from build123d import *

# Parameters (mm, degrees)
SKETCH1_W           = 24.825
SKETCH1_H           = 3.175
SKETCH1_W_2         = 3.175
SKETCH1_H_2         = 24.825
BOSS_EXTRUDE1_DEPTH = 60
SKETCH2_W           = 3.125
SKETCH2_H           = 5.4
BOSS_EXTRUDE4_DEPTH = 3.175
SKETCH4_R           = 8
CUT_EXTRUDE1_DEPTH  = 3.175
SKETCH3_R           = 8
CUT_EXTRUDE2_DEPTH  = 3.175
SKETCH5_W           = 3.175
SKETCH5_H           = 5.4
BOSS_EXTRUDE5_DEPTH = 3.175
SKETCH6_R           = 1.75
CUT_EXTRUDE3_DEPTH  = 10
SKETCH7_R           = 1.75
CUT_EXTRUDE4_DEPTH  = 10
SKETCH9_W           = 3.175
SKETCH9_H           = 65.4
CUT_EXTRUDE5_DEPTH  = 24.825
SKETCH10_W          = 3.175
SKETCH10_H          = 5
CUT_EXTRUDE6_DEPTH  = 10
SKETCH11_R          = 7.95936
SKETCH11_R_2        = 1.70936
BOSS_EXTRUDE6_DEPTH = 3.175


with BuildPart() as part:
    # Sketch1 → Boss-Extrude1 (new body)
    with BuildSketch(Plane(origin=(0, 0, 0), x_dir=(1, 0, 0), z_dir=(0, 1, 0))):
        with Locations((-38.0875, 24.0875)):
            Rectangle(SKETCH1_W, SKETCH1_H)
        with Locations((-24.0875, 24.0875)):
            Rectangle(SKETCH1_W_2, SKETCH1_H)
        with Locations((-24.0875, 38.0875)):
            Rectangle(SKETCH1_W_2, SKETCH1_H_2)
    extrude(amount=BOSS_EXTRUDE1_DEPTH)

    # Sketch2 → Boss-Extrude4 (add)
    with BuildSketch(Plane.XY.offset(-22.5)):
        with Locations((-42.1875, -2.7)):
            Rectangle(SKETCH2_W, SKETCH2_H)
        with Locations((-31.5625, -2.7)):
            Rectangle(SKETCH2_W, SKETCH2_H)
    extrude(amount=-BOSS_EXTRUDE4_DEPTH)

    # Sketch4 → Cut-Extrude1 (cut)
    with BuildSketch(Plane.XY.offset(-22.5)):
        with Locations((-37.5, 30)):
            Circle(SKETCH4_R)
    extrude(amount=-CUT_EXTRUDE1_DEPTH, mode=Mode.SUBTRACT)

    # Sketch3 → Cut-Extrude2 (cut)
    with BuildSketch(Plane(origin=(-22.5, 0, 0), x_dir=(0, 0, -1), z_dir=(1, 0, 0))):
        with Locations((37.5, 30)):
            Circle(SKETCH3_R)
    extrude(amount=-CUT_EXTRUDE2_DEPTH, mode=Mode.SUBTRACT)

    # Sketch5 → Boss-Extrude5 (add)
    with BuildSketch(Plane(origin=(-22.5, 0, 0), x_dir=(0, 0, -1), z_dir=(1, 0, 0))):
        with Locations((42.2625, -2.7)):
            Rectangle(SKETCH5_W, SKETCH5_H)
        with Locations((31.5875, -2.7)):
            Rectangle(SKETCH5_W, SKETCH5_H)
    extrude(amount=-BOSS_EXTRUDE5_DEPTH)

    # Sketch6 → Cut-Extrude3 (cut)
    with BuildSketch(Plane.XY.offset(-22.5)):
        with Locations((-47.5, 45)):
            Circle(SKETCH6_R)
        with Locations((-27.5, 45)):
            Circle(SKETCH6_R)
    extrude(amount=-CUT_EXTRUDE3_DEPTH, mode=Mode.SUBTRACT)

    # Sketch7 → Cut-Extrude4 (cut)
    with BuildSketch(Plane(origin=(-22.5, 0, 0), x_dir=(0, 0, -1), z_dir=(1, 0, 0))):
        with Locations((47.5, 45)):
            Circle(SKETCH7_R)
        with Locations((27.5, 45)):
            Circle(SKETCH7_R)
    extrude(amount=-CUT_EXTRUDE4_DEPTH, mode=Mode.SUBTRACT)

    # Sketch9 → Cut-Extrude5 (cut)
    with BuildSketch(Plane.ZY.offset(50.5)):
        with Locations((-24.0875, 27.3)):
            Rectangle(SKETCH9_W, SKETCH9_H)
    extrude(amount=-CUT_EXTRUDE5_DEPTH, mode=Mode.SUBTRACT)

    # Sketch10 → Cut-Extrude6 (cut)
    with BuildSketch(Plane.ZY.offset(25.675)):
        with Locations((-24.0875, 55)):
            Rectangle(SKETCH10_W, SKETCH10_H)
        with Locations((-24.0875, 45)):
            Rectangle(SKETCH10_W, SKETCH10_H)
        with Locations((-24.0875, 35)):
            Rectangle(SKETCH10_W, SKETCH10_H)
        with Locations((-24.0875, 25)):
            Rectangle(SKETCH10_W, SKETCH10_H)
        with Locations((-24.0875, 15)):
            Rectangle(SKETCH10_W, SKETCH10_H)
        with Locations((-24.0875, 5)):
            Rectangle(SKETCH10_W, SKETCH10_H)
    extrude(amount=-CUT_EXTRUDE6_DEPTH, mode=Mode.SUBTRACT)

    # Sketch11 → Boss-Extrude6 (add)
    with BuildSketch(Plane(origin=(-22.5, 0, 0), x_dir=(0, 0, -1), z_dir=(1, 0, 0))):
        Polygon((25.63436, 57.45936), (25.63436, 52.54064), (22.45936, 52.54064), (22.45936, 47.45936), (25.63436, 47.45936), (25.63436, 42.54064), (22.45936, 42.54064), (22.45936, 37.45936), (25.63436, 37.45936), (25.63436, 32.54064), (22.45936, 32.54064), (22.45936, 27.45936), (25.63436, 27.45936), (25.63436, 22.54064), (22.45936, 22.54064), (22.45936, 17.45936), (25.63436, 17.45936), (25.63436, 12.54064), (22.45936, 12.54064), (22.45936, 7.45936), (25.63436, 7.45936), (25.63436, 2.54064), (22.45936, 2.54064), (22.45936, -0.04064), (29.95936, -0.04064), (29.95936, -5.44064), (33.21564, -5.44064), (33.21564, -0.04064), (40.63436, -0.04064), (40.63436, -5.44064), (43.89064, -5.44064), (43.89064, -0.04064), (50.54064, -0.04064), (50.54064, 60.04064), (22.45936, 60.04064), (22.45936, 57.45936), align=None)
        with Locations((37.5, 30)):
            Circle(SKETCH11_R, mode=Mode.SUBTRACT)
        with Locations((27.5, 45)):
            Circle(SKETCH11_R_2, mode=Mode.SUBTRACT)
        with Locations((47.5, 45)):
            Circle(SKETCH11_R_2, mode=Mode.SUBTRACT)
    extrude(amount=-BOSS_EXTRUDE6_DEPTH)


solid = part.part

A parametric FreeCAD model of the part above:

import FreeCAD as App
import Part
import Sketcher
from FreeCAD import Vector

doc = App.newDocument("Part")
body = doc.addObject("PartDesign::Body", "Body")

# Sketch on XZ plane
sketch1 = body.newObject("Sketcher::SketchObject", "Sketch")
sketch1.AttachmentSupport = (doc.getObject("XZ_Plane"), [""])
sketch1.MapMode = "FlatFace"
sketch1.addGeometry(Part.LineSegment(Vector(-50.5, -25.7, 0), Vector(-50.5, -22.5, 0)), False)
sketch1.addGeometry(Part.LineSegment(Vector(-50.5, -22.5, 0), Vector(-22.5, -22.5, 0)), False)
sketch1.addGeometry(Part.LineSegment(Vector(-22.5, -22.5, 0), Vector(-22.5, -50.5, 0)), False)
sketch1.addGeometry(Part.LineSegment(Vector(-22.5, -50.5, 0), Vector(-25.7, -50.5, 0)), False)
sketch1.addGeometry(Part.LineSegment(Vector(-25.7, -50.5, 0), Vector(-25.7, -25.7, 0)), False)
sketch1.addGeometry(Part.LineSegment(Vector(-25.7, -25.7, 0), Vector(-50.5, -25.7, 0)), False)
sketch1.addConstraint(Sketcher.Constraint("Coincident", 0, 2, 1, 1))
sketch1.addConstraint(Sketcher.Constraint("Coincident", 1, 2, 2, 1))
sketch1.addConstraint(Sketcher.Constraint("Coincident", 2, 2, 3, 1))
sketch1.addConstraint(Sketcher.Constraint("Coincident", 3, 2, 4, 1))
sketch1.addConstraint(Sketcher.Constraint("Coincident", 4, 2, 5, 1))
sketch1.addConstraint(Sketcher.Constraint("Coincident", 5, 2, 0, 1))
sketch1.addConstraint(Sketcher.Constraint("Vertical", 0))
sketch1.addConstraint(Sketcher.Constraint("Horizontal", 1))
sketch1.addConstraint(Sketcher.Constraint("Vertical", 2))
sketch1.addConstraint(Sketcher.Constraint("Horizontal", 3))
sketch1.addConstraint(Sketcher.Constraint("Vertical", 4))
sketch1.addConstraint(Sketcher.Constraint("Horizontal", 5))
sketch1.addConstraint(Sketcher.Constraint("Equal", 3, 0))
sketch1.addConstraint(Sketcher.Constraint("Equal", 1, 2))
sketch1.addConstraint(Sketcher.Constraint("DistanceX", 1, 1, 1, 2, 28.0))
sketch1.addConstraint(Sketcher.Constraint("DistanceX", 0, 2, -1, 1, 50.5))
sketch1.addConstraint(Sketcher.Constraint("DistanceY", 0, 2, -1, 1, 22.5))
sketch1.addConstraint(Sketcher.Constraint("DistanceX", 3, 2, 3, 1, 3.175))
pad1 = body.newObject("PartDesign::Pad", "Pad")
pad1.Profile = sketch1
pad1.Length = 60
pad1.Reversed = True

# Sketch on XY plane
sketch2 = body.newObject("Sketcher::SketchObject", "Sketch001")
sketch2.AttachmentSupport = (doc.getObject("XY_Plane"), [""])
sketch2.MapMode = "FlatFace"
sketch2.AttachmentOffset = App.Placement(Vector(0, 0, -22.5), App.Rotation())
sketch2.addGeometry(Part.LineSegment(Vector(-43.8, 0, 0), Vector(-43.8, -5.4, 0)), False)
sketch2.addGeometry(Part.LineSegment(Vector(-43.8, -5.4, 0), Vector(-40.6, -5.4, 0)), False)
sketch2.addGeometry(Part.LineSegment(Vector(-40.6, -5.4, 0), Vector(-40.6, 0, 0)), False)
sketch2.addGeometry(Part.LineSegment(Vector(-40.6, 0, 0), Vector(-43.8, 0, 0)), False)
sketch2.addGeometry(Part.LineSegment(Vector(-33.1, 0, 0), Vector(-33.1, -5.4, 0)), False)
sketch2.addGeometry(Part.LineSegment(Vector(-33.1, -5.4, 0), Vector(-30, -5.4, 0)), False)
sketch2.addGeometry(Part.LineSegment(Vector(-30, -5.4, 0), Vector(-30, 0, 0)), False)
sketch2.addGeometry(Part.LineSegment(Vector(-30, 0, 0), Vector(-33.1, 0, 0)), False)
sketch2.addConstraint(Sketcher.Constraint("Coincident", 0, 2, 1, 1))
sketch2.addConstraint(Sketcher.Constraint("Coincident", 1, 2, 2, 1))
sketch2.addConstraint(Sketcher.Constraint("Coincident", 2, 2, 3, 1))
sketch2.addConstraint(Sketcher.Constraint("Coincident", 3, 2, 0, 1))
sketch2.addConstraint(Sketcher.Constraint("Coincident", 4, 2, 5, 1))
sketch2.addConstraint(Sketcher.Constraint("Coincident", 5, 2, 6, 1))
sketch2.addConstraint(Sketcher.Constraint("Coincident", 6, 2, 7, 1))
sketch2.addConstraint(Sketcher.Constraint("Coincident", 7, 2, 4, 1))
sketch2.addConstraint(Sketcher.Constraint("Vertical", 0))
sketch2.addConstraint(Sketcher.Constraint("Horizontal", 1))
sketch2.addConstraint(Sketcher.Constraint("Vertical", 2))
sketch2.addConstraint(Sketcher.Constraint("Horizontal", 3))
sketch2.addConstraint(Sketcher.Constraint("Vertical", 4))
sketch2.addConstraint(Sketcher.Constraint("Horizontal", 5))
sketch2.addConstraint(Sketcher.Constraint("Vertical", 6))
sketch2.addConstraint(Sketcher.Constraint("Horizontal", 7))
sketch2.addConstraint(Sketcher.Constraint("PointOnObject", 2, 2, -1))
sketch2.addConstraint(Sketcher.Constraint("PointOnObject", 6, 2, -1))
sketch2.addConstraint(Sketcher.Constraint("Horizontal", 1, 2, 4, 2))
sketch2.addConstraint(Sketcher.Constraint("Equal", 3, 5))
sketch2.addConstraint(Sketcher.Constraint("DistanceY", 0, 2, 0, 1, 5.4))
sketch2.addConstraint(Sketcher.Constraint("DistanceX", 5, 2, -1, 1, 30.0))
sketch2.addConstraint(Sketcher.Constraint("DistanceX", 1, 2, 4, 2, 7.5))
sketch2.addConstraint(Sketcher.Constraint("DistanceX", 1, 1, 1, 2, 3.125))
pad2 = body.newObject("PartDesign::Pad", "Pad001")
pad2.Profile = sketch2
pad2.Length = 3.175
pad2.Reversed = True

# Sketch on XY plane
sketch3 = body.newObject("Sketcher::SketchObject", "Sketch002")
sketch3.AttachmentSupport = (doc.getObject("XY_Plane"), [""])
sketch3.MapMode = "FlatFace"
sketch3.AttachmentOffset = App.Placement(Vector(0, 0, -22.5), App.Rotation())
sketch3.addGeometry(Part.Circle(Vector(-38, 30, 0), Vector(0, 0, 1), 8), False)
sketch3.addConstraint(Sketcher.Constraint("Diameter", 0, 16.0))
sketch3.addConstraint(Sketcher.Constraint("DistanceY", -1, 1, 0, 3, 30.0))
sketch3.addConstraint(Sketcher.Constraint("DistanceX", 0, 3, -1, 1, 37.5))
pocket1 = body.newObject("PartDesign::Pocket", "Pocket")
pocket1.Profile = sketch3
pocket1.Length = 3.175

# Sketch on YZ plane
sketch4 = body.newObject("Sketcher::SketchObject", "Sketch003")
sketch4.AttachmentSupport = (doc.getObject("YZ_Plane"), [""])
sketch4.MapMode = "FlatFace"
sketch4.AttachmentOffset = App.Placement(Vector(0, 0, -22.5), App.Rotation())
sketch4.addGeometry(Part.Circle(Vector(30, -38, 0), Vector(0, 0, 1), 8), False)
sketch4.addConstraint(Sketcher.Constraint("Diameter", 0, 16.0))
sketch4.addConstraint(Sketcher.Constraint("DistanceX", -1, 1, 0, 3, 30.0))
sketch4.addConstraint(Sketcher.Constraint("DistanceY", 0, 3, -1, 1, 37.5))
pocket2 = body.newObject("PartDesign::Pocket", "Pocket001")
pocket2.Profile = sketch4
pocket2.Length = 3.175

# Sketch on YZ plane
sketch5 = body.newObject("Sketcher::SketchObject", "Sketch004")
sketch5.AttachmentSupport = (doc.getObject("YZ_Plane"), [""])
sketch5.MapMode = "FlatFace"
sketch5.AttachmentOffset = App.Placement(Vector(0, 0, -22.5), App.Rotation())
sketch5.addGeometry(Part.LineSegment(Vector(0, -40.7, 0), Vector(-5.4, -40.7, 0)), False)
sketch5.addGeometry(Part.LineSegment(Vector(-5.4, -40.7, 0), Vector(-5.4, -43.9, 0)), False)
sketch5.addGeometry(Part.LineSegment(Vector(-5.4, -43.9, 0), Vector(0, -43.9, 0)), False)
sketch5.addGeometry(Part.LineSegment(Vector(0, -43.9, 0), Vector(0, -40.7, 0)), False)
sketch5.addGeometry(Part.LineSegment(Vector(0, -30, 0), Vector(-5.4, -30, 0)), False)
sketch5.addGeometry(Part.LineSegment(Vector(-5.4, -30, 0), Vector(-5.4, -33.2, 0)), False)
sketch5.addGeometry(Part.LineSegment(Vector(-5.4, -33.2, 0), Vector(0, -33.2, 0)), False)
sketch5.addGeometry(Part.LineSegment(Vector(0, -33.2, 0), Vector(0, -30, 0)), False)
sketch5.addConstraint(Sketcher.Constraint("Coincident", 0, 2, 1, 1))
sketch5.addConstraint(Sketcher.Constraint("Coincident", 1, 2, 2, 1))
sketch5.addConstraint(Sketcher.Constraint("Coincident", 2, 2, 3, 1))
sketch5.addConstraint(Sketcher.Constraint("Coincident", 3, 2, 0, 1))
sketch5.addConstraint(Sketcher.Constraint("Coincident", 4, 2, 5, 1))
sketch5.addConstraint(Sketcher.Constraint("Coincident", 5, 2, 6, 1))
sketch5.addConstraint(Sketcher.Constraint("Coincident", 6, 2, 7, 1))
sketch5.addConstraint(Sketcher.Constraint("Coincident", 7, 2, 4, 1))
sketch5.addConstraint(Sketcher.Constraint("Horizontal", 0))
sketch5.addConstraint(Sketcher.Constraint("Vertical", 1))
sketch5.addConstraint(Sketcher.Constraint("Horizontal", 2))
sketch5.addConstraint(Sketcher.Constraint("Vertical", 3))
sketch5.addConstraint(Sketcher.Constraint("Horizontal", 4))
sketch5.addConstraint(Sketcher.Constraint("Vertical", 5))
sketch5.addConstraint(Sketcher.Constraint("Horizontal", 6))
sketch5.addConstraint(Sketcher.Constraint("Vertical", 7))
sketch5.addConstraint(Sketcher.Constraint("PointOnObject", 2, 2, -2))
sketch5.addConstraint(Sketcher.Constraint("PointOnObject", 6, 2, -2))
sketch5.addConstraint(Sketcher.Constraint("Vertical", 1, 2, 4, 2))
sketch5.addConstraint(Sketcher.Constraint("Equal", 3, 5))
sketch5.addConstraint(Sketcher.Constraint("DistanceX", 0, 2, 0, 1, 5.4))
sketch5.addConstraint(Sketcher.Constraint("DistanceY", 4, 2, -1, 1, 30.0))
sketch5.addConstraint(Sketcher.Constraint("DistanceY", 0, 2, 5, 2, 7.5))
sketch5.addConstraint(Sketcher.Constraint("DistanceY", 1, 2, 1, 1, 3.175))
pad3 = body.newObject("PartDesign::Pad", "Pad002")
pad3.Profile = sketch5
pad3.Length = 3.175
pad3.Reversed = True

# Sketch on XY plane
sketch6 = body.newObject("Sketcher::SketchObject", "Sketch005")
sketch6.AttachmentSupport = (doc.getObject("XY_Plane"), [""])
sketch6.MapMode = "FlatFace"
sketch6.AttachmentOffset = App.Placement(Vector(0, 0, -22.5), App.Rotation())
sketch6.addGeometry(Part.Circle(Vector(-47.5, 45, 0), Vector(0, 0, 1), 1.8), False)
sketch6.addGeometry(Part.Circle(Vector(-27.5, 45, 0), Vector(0, 0, 1), 1.8), False)
sketch6.addConstraint(Sketcher.Constraint("Equal", 0, 1))
sketch6.addConstraint(Sketcher.Constraint("Horizontal", 0, 3, 1, 3))
sketch6.addConstraint(Sketcher.Constraint("Diameter", 0, 3.5))
sketch6.addConstraint(Sketcher.Constraint("DistanceY", -1, 1, 0, 3, 45.0))
sketch6.addConstraint(Sketcher.Constraint("DistanceX", 0, 3, 1, 3, 20.0))
sketch6.addConstraint(Sketcher.Constraint("DistanceX", 0, 3, -1, 1, 47.5))
pocket3 = body.newObject("PartDesign::Pocket", "Pocket002")
pocket3.Profile = sketch6
pocket3.Length = 10

# Sketch on YZ plane
sketch7 = body.newObject("Sketcher::SketchObject", "Sketch006")
sketch7.AttachmentSupport = (doc.getObject("YZ_Plane"), [""])
sketch7.MapMode = "FlatFace"
sketch7.AttachmentOffset = App.Placement(Vector(0, 0, -22.5), App.Rotation())
sketch7.addGeometry(Part.Circle(Vector(45, -47.5, 0), Vector(0, 0, 1), 1.8), False)
sketch7.addGeometry(Part.Circle(Vector(45, -27.5, 0), Vector(0, 0, 1), 1.8), False)
sketch7.addConstraint(Sketcher.Constraint("Equal", 0, 1))
sketch7.addConstraint(Sketcher.Constraint("Vertical", 0, 3, 1, 3))
sketch7.addConstraint(Sketcher.Constraint("Diameter", 0, 3.5))
sketch7.addConstraint(Sketcher.Constraint("DistanceX", -1, 1, 0, 3, 45.0))
sketch7.addConstraint(Sketcher.Constraint("DistanceY", 0, 3, 1, 3, 20.0))
sketch7.addConstraint(Sketcher.Constraint("DistanceY", 0, 3, -1, 1, 47.5))
pocket4 = body.newObject("PartDesign::Pocket", "Pocket003")
pocket4.Profile = sketch7
pocket4.Length = 10

# Sketch on YZ plane
sketch8 = body.newObject("Sketcher::SketchObject", "Sketch007")
sketch8.AttachmentSupport = (doc.getObject("YZ_Plane"), [""])
sketch8.MapMode = "FlatFace"
sketch8.AttachmentOffset = App.Placement(Vector(0, 0, -50.5), App.Rotation())
sketch8.addGeometry(Part.LineSegment(Vector(60, -25.7, 0), Vector(-5.4, -25.7, 0)), False)
sketch8.addGeometry(Part.LineSegment(Vector(-5.4, -25.7, 0), Vector(-5.4, -22.5, 0)), False)
sketch8.addGeometry(Part.LineSegment(Vector(-5.4, -22.5, 0), Vector(60, -22.5, 0)), False)
sketch8.addGeometry(Part.LineSegment(Vector(60, -22.5, 0), Vector(60, -25.7, 0)), False)
sketch8.addConstraint(Sketcher.Constraint("Coincident", 0, 2, 1, 1))
sketch8.addConstraint(Sketcher.Constraint("Coincident", 1, 2, 2, 1))
sketch8.addConstraint(Sketcher.Constraint("Coincident", 2, 2, 3, 1))
sketch8.addConstraint(Sketcher.Constraint("Coincident", 3, 2, 0, 1))
sketch8.addConstraint(Sketcher.Constraint("Horizontal", 0))
sketch8.addConstraint(Sketcher.Constraint("Vertical", 1))
sketch8.addConstraint(Sketcher.Constraint("Horizontal", 2))
sketch8.addConstraint(Sketcher.Constraint("Vertical", 3))
sketch8.addConstraint(Sketcher.Constraint("DistanceX", 0, 2, 0, 1, 65.4))
sketch8.addConstraint(Sketcher.Constraint("DistanceX", -1, 1, 2, 2, 60.0))
sketch8.addConstraint(Sketcher.Constraint("DistanceY", 1, 2, -1, 1, 22.5))
sketch8.addConstraint(Sketcher.Constraint("DistanceY", 1, 1, 1, 2, 3.175))
pocket5 = body.newObject("PartDesign::Pocket", "Pocket004")
pocket5.Profile = sketch8
pocket5.Length = 24.825
pocket5.Reversed = True

# Sketch on YZ plane
sketch9 = body.newObject("Sketcher::SketchObject", "Sketch008")
sketch9.AttachmentSupport = (doc.getObject("YZ_Plane"), [""])
sketch9.MapMode = "FlatFace"
sketch9.AttachmentOffset = App.Placement(Vector(0, 0, -25.675), App.Rotation())
sketch9.addGeometry(Part.LineSegment(Vector(57.5, -25.7, 0), Vector(52.5, -25.7, 0)), False)
sketch9.addGeometry(Part.LineSegment(Vector(52.5, -25.7, 0), Vector(52.5, -22.5, 0)), False)
sketch9.addGeometry(Part.LineSegment(Vector(52.5, -22.5, 0), Vector(57.5, -22.5, 0)), False)
sketch9.addGeometry(Part.LineSegment(Vector(57.5, -22.5, 0), Vector(57.5, -25.7, 0)), False)
sketch9.addGeometry(Part.LineSegment(Vector(47.5, -25.7, 0), Vector(42.5, -25.7, 0)), False)
sketch9.addGeometry(Part.LineSegment(Vector(42.5, -25.7, 0), Vector(42.5, -22.5, 0)), False)
sketch9.addGeometry(Part.LineSegment(Vector(42.5, -22.5, 0), Vector(47.5, -22.5, 0)), False)
sketch9.addGeometry(Part.LineSegment(Vector(47.5, -22.5, 0), Vector(47.5, -25.7, 0)), False)
sketch9.addGeometry(Part.LineSegment(Vector(37.5, -25.7, 0), Vector(32.5, -25.7, 0)), False)
sketch9.addGeometry(Part.LineSegment(Vector(32.5, -25.7, 0), Vector(32.5, -22.5, 0)), False)
sketch9.addGeometry(Part.LineSegment(Vector(32.5, -22.5, 0), Vector(37.5, -22.5, 0)), False)
sketch9.addGeometry(Part.LineSegment(Vector(37.5, -22.5, 0), Vector(37.5, -25.7, 0)), False)
sketch9.addGeometry(Part.LineSegment(Vector(27.5, -25.7, 0), Vector(22.5, -25.7, 0)), False)
sketch9.addGeometry(Part.LineSegment(Vector(22.5, -25.7, 0), Vector(22.5, -22.5, 0)), False)
sketch9.addGeometry(Part.LineSegment(Vector(22.5, -22.5, 0), Vector(27.5, -22.5, 0)), False)
sketch9.addGeometry(Part.LineSegment(Vector(27.5, -22.5, 0), Vector(27.5, -25.7, 0)), False)
sketch9.addGeometry(Part.LineSegment(Vector(17.5, -25.7, 0), Vector(12.5, -25.7, 0)), False)
sketch9.addGeometry(Part.LineSegment(Vector(12.5, -25.7, 0), Vector(12.5, -22.5, 0)), False)
sketch9.addGeometry(Part.LineSegment(Vector(12.5, -22.5, 0), Vector(17.5, -22.5, 0)), False)
sketch9.addGeometry(Part.LineSegment(Vector(17.5, -22.5, 0), Vector(17.5, -25.7, 0)), False)
sketch9.addGeometry(Part.LineSegment(Vector(7.5, -25.7, 0), Vector(2.5, -25.7, 0)), False)
sketch9.addGeometry(Part.LineSegment(Vector(2.5, -25.7, 0), Vector(2.5, -22.5, 0)), False)
sketch9.addGeometry(Part.LineSegment(Vector(2.5, -22.5, 0), Vector(7.5, -22.5, 0)), False)
sketch9.addGeometry(Part.LineSegment(Vector(7.5, -22.5, 0), Vector(7.5, -25.7, 0)), False)
sketch9.addConstraint(Sketcher.Constraint("Coincident", 0, 2, 1, 1))
sketch9.addConstraint(Sketcher.Constraint("Coincident", 1, 2, 2, 1))
sketch9.addConstraint(Sketcher.Constraint("Coincident", 2, 2, 3, 1))
sketch9.addConstraint(Sketcher.Constraint("Coincident", 3, 2, 0, 1))
sketch9.addConstraint(Sketcher.Constraint("Coincident", 4, 2, 5, 1))
sketch9.addConstraint(Sketcher.Constraint("Coincident", 5, 2, 6, 1))
sketch9.addConstraint(Sketcher.Constraint("Coincident", 6, 2, 7, 1))
sketch9.addConstraint(Sketcher.Constraint("Coincident", 7, 2, 4, 1))
sketch9.addConstraint(Sketcher.Constraint("Coincident", 8, 2, 9, 1))
sketch9.addConstraint(Sketcher.Constraint("Coincident", 9, 2, 10, 1))
sketch9.addConstraint(Sketcher.Constraint("Coincident", 10, 2, 11, 1))
sketch9.addConstraint(Sketcher.Constraint("Coincident", 11, 2, 8, 1))
sketch9.addConstraint(Sketcher.Constraint("Coincident", 12, 2, 13, 1))
sketch9.addConstraint(Sketcher.Constraint("Coincident", 13, 2, 14, 1))
sketch9.addConstraint(Sketcher.Constraint("Coincident", 14, 2, 15, 1))
sketch9.addConstraint(Sketcher.Constraint("Coincident", 15, 2, 12, 1))
sketch9.addConstraint(Sketcher.Constraint("Coincident", 16, 2, 17, 1))
sketch9.addConstraint(Sketcher.Constraint("Coincident", 17, 2, 18, 1))
sketch9.addConstraint(Sketcher.Constraint("Coincident", 18, 2, 19, 1))
sketch9.addConstraint(Sketcher.Constraint("Coincident", 19, 2, 16, 1))
sketch9.addConstraint(Sketcher.Constraint("Coincident", 20, 2, 21, 1))
sketch9.addConstraint(Sketcher.Constraint("Coincident", 21, 2, 22, 1))
sketch9.addConstraint(Sketcher.Constraint("Coincident", 22, 2, 23, 1))
sketch9.addConstraint(Sketcher.Constraint("Coincident", 23, 2, 20, 1))
sketch9.addConstraint(Sketcher.Constraint("Horizontal", 0))
sketch9.addConstraint(Sketcher.Constraint("Vertical", 1))
sketch9.addConstraint(Sketcher.Constraint("Horizontal", 2))
sketch9.addConstraint(Sketcher.Constraint("Vertical", 3))
sketch9.addConstraint(Sketcher.Constraint("Horizontal", 4))
sketch9.addConstraint(Sketcher.Constraint("Vertical", 5))
sketch9.addConstraint(Sketcher.Constraint("Horizontal", 6))
sketch9.addConstraint(Sketcher.Constraint("Vertical", 7))
sketch9.addConstraint(Sketcher.Constraint("Horizontal", 8))
sketch9.addConstraint(Sketcher.Constraint("Vertical", 9))
sketch9.addConstraint(Sketcher.Constraint("Horizontal", 10))
sketch9.addConstraint(Sketcher.Constraint("Vertical", 11))
sketch9.addConstraint(Sketcher.Constraint("Horizontal", 12))
sketch9.addConstraint(Sketcher.Constraint("Vertical", 13))
sketch9.addConstraint(Sketcher.Constraint("Horizontal", 14))
sketch9.addConstraint(Sketcher.Constraint("Vertical", 15))
sketch9.addConstraint(Sketcher.Constraint("Horizontal", 16))
sketch9.addConstraint(Sketcher.Constraint("Vertical", 17))
sketch9.addConstraint(Sketcher.Constraint("Horizontal", 18))
sketch9.addConstraint(Sketcher.Constraint("Vertical", 19))
sketch9.addConstraint(Sketcher.Constraint("Horizontal", 20))
sketch9.addConstraint(Sketcher.Constraint("Vertical", 21))
sketch9.addConstraint(Sketcher.Constraint("Horizontal", 22))
sketch9.addConstraint(Sketcher.Constraint("Vertical", 23))
sketch9.addConstraint(Sketcher.Constraint("Horizontal", 3, 2, 4, 2))
sketch9.addConstraint(Sketcher.Constraint("Horizontal", 2, 2, 5, 2))
sketch9.addConstraint(Sketcher.Constraint("Horizontal", 7, 2, 8, 2))
sketch9.addConstraint(Sketcher.Constraint("Horizontal", 6, 2, 9, 2))
sketch9.addConstraint(Sketcher.Constraint("Horizontal", 11, 2, 12, 2))
sketch9.addConstraint(Sketcher.Constraint("Horizontal", 10, 2, 13, 2))
sketch9.addConstraint(Sketcher.Constraint("Horizontal", 15, 2, 16, 2))
sketch9.addConstraint(Sketcher.Constraint("Horizontal", 14, 2, 17, 2))
sketch9.addConstraint(Sketcher.Constraint("Horizontal", 19, 2, 20, 2))
sketch9.addConstraint(Sketcher.Constraint("Horizontal", 18, 2, 21, 2))
sketch9.addConstraint(Sketcher.Constraint("Equal", 2, 4))
sketch9.addConstraint(Sketcher.Constraint("Equal", 6, 8))
sketch9.addConstraint(Sketcher.Constraint("Equal", 10, 12))
sketch9.addConstraint(Sketcher.Constraint("Equal", 14, 16))
sketch9.addConstraint(Sketcher.Constraint("Equal", 18, 20))
sketch9.addConstraint(Sketcher.Constraint("DistanceX", 0, 2, 0, 1, 5.0))
sketch9.addConstraint(Sketcher.Constraint("DistanceX", 4, 2, 0, 2, 10.0))
sketch9.addConstraint(Sketcher.Constraint("DistanceX", 8, 2, 4, 2, 10.0))
sketch9.addConstraint(Sketcher.Constraint("DistanceX", 12, 2, 8, 2, 10.0))
sketch9.addConstraint(Sketcher.Constraint("DistanceX", 16, 2, 12, 2, 10.0))
sketch9.addConstraint(Sketcher.Constraint("DistanceX", 20, 2, 16, 2, 10.0))
sketch9.addConstraint(Sketcher.Constraint("DistanceX", -1, 1, 0, 2, 52.5))
sketch9.addConstraint(Sketcher.Constraint("DistanceY", 1, 2, -1, 1, 22.5))
sketch9.addConstraint(Sketcher.Constraint("DistanceY", 1, 1, 1, 2, 3.175))
pocket6 = body.newObject("PartDesign::Pocket", "Pocket005")
pocket6.Profile = sketch9
pocket6.Length = 10
pocket6.Reversed = True

# Sketch on YZ plane
sketch10 = body.newObject("Sketcher::SketchObject", "Sketch009")
sketch10.AttachmentSupport = (doc.getObject("YZ_Plane"), [""])
sketch10.MapMode = "FlatFace"
sketch10.AttachmentOffset = App.Placement(Vector(0, 0, -22.5), App.Rotation())
sketch10.addGeometry(Part.LineSegment(Vector(57.5, -25.6, 0), Vector(52.5, -25.6, 0)), False)
sketch10.addGeometry(Part.LineSegment(Vector(52.5, -25.6, 0), Vector(52.5, -22.5, 0)), False)
sketch10.addGeometry(Part.LineSegment(Vector(52.5, -22.5, 0), Vector(47.5, -22.5, 0)), False)
sketch10.addGeometry(Part.LineSegment(Vector(47.5, -22.5, 0), Vector(47.5, -25.6, 0)), False)
sketch10.addGeometry(Part.LineSegment(Vector(47.5, -25.6, 0), Vector(42.5, -25.6, 0)), False)
sketch10.addGeometry(Part.LineSegment(Vector(42.5, -25.6, 0), Vector(42.5, -22.5, 0)), False)
sketch10.addGeometry(Part.LineSegment(Vector(42.5, -22.5, 0), Vector(37.5, -22.5, 0)), False)
sketch10.addGeometry(Part.LineSegment(Vector(37.5, -22.5, 0), Vector(37.5, -25.6, 0)), False)
sketch10.addGeometry(Part.LineSegment(Vector(37.5, -25.6, 0), Vector(32.5, -25.6, 0)), False)
sketch10.addGeometry(Part.LineSegment(Vector(32.5, -25.6, 0), Vector(32.5, -22.5, 0)), False)
sketch10.addGeometry(Part.LineSegment(Vector(32.5, -22.5, 0), Vector(27.5, -22.5, 0)), False)
sketch10.addGeometry(Part.LineSegment(Vector(27.5, -22.5, 0), Vector(27.5, -25.6, 0)), False)
sketch10.addGeometry(Part.LineSegment(Vector(27.5, -25.6, 0), Vector(22.5, -25.6, 0)), False)
sketch10.addGeometry(Part.LineSegment(Vector(22.5, -25.6, 0), Vector(22.5, -22.5, 0)), False)
sketch10.addGeometry(Part.LineSegment(Vector(22.5, -22.5, 0), Vector(17.5, -22.5, 0)), False)
sketch10.addGeometry(Part.LineSegment(Vector(17.5, -22.5, 0), Vector(17.5, -25.6, 0)), False)
sketch10.addGeometry(Part.LineSegment(Vector(17.5, -25.6, 0), Vector(12.5, -25.6, 0)), False)
sketch10.addGeometry(Part.LineSegment(Vector(12.5, -25.6, 0), Vector(12.5, -22.5, 0)), False)
sketch10.addGeometry(Part.LineSegment(Vector(12.5, -22.5, 0), Vector(7.5, -22.5, 0)), False)
sketch10.addGeometry(Part.LineSegment(Vector(7.5, -22.5, 0), Vector(7.5, -25.6, 0)), False)
sketch10.addGeometry(Part.LineSegment(Vector(7.5, -25.6, 0), Vector(2.5, -25.6, 0)), False)
sketch10.addGeometry(Part.LineSegment(Vector(2.5, -25.6, 0), Vector(2.5, -22.5, 0)), False)
sketch10.addGeometry(Part.LineSegment(Vector(2.5, -22.5, 0), Vector(0, -22.5, 0)), False)
sketch10.addGeometry(Part.LineSegment(Vector(0, -22.5, 0), Vector(0, -30, 0)), False)
sketch10.addGeometry(Part.LineSegment(Vector(0, -30, 0), Vector(-5.4, -30, 0)), False)
sketch10.addGeometry(Part.LineSegment(Vector(-5.4, -30, 0), Vector(-5.4, -33.2, 0)), False)
sketch10.addGeometry(Part.LineSegment(Vector(-5.4, -33.2, 0), Vector(0, -33.2, 0)), False)
sketch10.addGeometry(Part.LineSegment(Vector(0, -33.2, 0), Vector(0, -40.6, 0)), False)
sketch10.addGeometry(Part.LineSegment(Vector(0, -40.6, 0), Vector(-5.4, -40.6, 0)), False)
sketch10.addGeometry(Part.LineSegment(Vector(-5.4, -40.6, 0), Vector(-5.4, -43.9, 0)), False)
sketch10.addGeometry(Part.LineSegment(Vector(-5.4, -43.9, 0), Vector(0, -43.9, 0)), False)
sketch10.addGeometry(Part.LineSegment(Vector(0, -43.9, 0), Vector(0, -50.5, 0)), False)
sketch10.addGeometry(Part.LineSegment(Vector(0, -50.5, 0), Vector(60, -50.5, 0)), False)
sketch10.addGeometry(Part.LineSegment(Vector(60, -50.5, 0), Vector(60, -22.5, 0)), False)
sketch10.addGeometry(Part.LineSegment(Vector(60, -22.5, 0), Vector(57.5, -22.5, 0)), False)
sketch10.addGeometry(Part.LineSegment(Vector(57.5, -22.5, 0), Vector(57.5, -25.6, 0)), False)
sketch10.addGeometry(Part.Circle(Vector(30, -37.5, 0), Vector(0, 0, 1), 8), False)
sketch10.addGeometry(Part.Circle(Vector(45, -27.5, 0), Vector(0, 0, 1), 1.7), False)
sketch10.addGeometry(Part.Circle(Vector(45, -47.5, 0), Vector(0, 0, 1), 1.7), False)
sketch10.addConstraint(Sketcher.Constraint("Coincident", 0, 2, 1, 1))
sketch10.addConstraint(Sketcher.Constraint("Coincident", 1, 2, 2, 1))
sketch10.addConstraint(Sketcher.Constraint("Coincident", 2, 2, 3, 1))
sketch10.addConstraint(Sketcher.Constraint("Coincident", 3, 2, 4, 1))
sketch10.addConstraint(Sketcher.Constraint("Coincident", 4, 2, 5, 1))
sketch10.addConstraint(Sketcher.Constraint("Coincident", 5, 2, 6, 1))
sketch10.addConstraint(Sketcher.Constraint("Coincident", 6, 2, 7, 1))
sketch10.addConstraint(Sketcher.Constraint("Coincident", 7, 2, 8, 1))
sketch10.addConstraint(Sketcher.Constraint("Coincident", 8, 2, 9, 1))
sketch10.addConstraint(Sketcher.Constraint("Coincident", 9, 2, 10, 1))
sketch10.addConstraint(Sketcher.Constraint("Coincident", 10, 2, 11, 1))
sketch10.addConstraint(Sketcher.Constraint("Coincident", 11, 2, 12, 1))
sketch10.addConstraint(Sketcher.Constraint("Coincident", 12, 2, 13, 1))
sketch10.addConstraint(Sketcher.Constraint("Coincident", 13, 2, 14, 1))
sketch10.addConstraint(Sketcher.Constraint("Coincident", 14, 2, 15, 1))
sketch10.addConstraint(Sketcher.Constraint("Coincident", 15, 2, 16, 1))
sketch10.addConstraint(Sketcher.Constraint("Coincident", 16, 2, 17, 1))
sketch10.addConstraint(Sketcher.Constraint("Coincident", 17, 2, 18, 1))
sketch10.addConstraint(Sketcher.Constraint("Coincident", 18, 2, 19, 1))
sketch10.addConstraint(Sketcher.Constraint("Coincident", 19, 2, 20, 1))
sketch10.addConstraint(Sketcher.Constraint("Coincident", 20, 2, 21, 1))
sketch10.addConstraint(Sketcher.Constraint("Coincident", 21, 2, 22, 1))
sketch10.addConstraint(Sketcher.Constraint("Coincident", 22, 2, 23, 1))
sketch10.addConstraint(Sketcher.Constraint("Coincident", 23, 2, 24, 1))
sketch10.addConstraint(Sketcher.Constraint("Coincident", 24, 2, 25, 1))
sketch10.addConstraint(Sketcher.Constraint("Coincident", 25, 2, 26, 1))
sketch10.addConstraint(Sketcher.Constraint("Coincident", 26, 2, 27, 1))
sketch10.addConstraint(Sketcher.Constraint("Coincident", 27, 2, 28, 1))
sketch10.addConstraint(Sketcher.Constraint("Coincident", 28, 2, 29, 1))
sketch10.addConstraint(Sketcher.Constraint("Coincident", 29, 2, 30, 1))
sketch10.addConstraint(Sketcher.Constraint("Coincident", 30, 2, 31, 1))
sketch10.addConstraint(Sketcher.Constraint("Coincident", 31, 2, 32, 1))
sketch10.addConstraint(Sketcher.Constraint("Coincident", 32, 2, 33, 1))
sketch10.addConstraint(Sketcher.Constraint("Coincident", 33, 2, 34, 1))
sketch10.addConstraint(Sketcher.Constraint("Coincident", 34, 2, 35, 1))
sketch10.addConstraint(Sketcher.Constraint("Coincident", 35, 2, 0, 1))
sketch10.addConstraint(Sketcher.Constraint("Horizontal", 0))
sketch10.addConstraint(Sketcher.Constraint("Vertical", 1))
sketch10.addConstraint(Sketcher.Constraint("Horizontal", 2))
sketch10.addConstraint(Sketcher.Constraint("Vertical", 3))
sketch10.addConstraint(Sketcher.Constraint("Horizontal", 4))
sketch10.addConstraint(Sketcher.Constraint("Vertical", 5))
sketch10.addConstraint(Sketcher.Constraint("Horizontal", 6))
sketch10.addConstraint(Sketcher.Constraint("Vertical", 7))
sketch10.addConstraint(Sketcher.Constraint("Horizontal", 8))
sketch10.addConstraint(Sketcher.Constraint("Vertical", 9))
sketch10.addConstraint(Sketcher.Constraint("Horizontal", 10))
sketch10.addConstraint(Sketcher.Constraint("Vertical", 11))
sketch10.addConstraint(Sketcher.Constraint("Horizontal", 12))
sketch10.addConstraint(Sketcher.Constraint("Vertical", 13))
sketch10.addConstraint(Sketcher.Constraint("Horizontal", 14))
sketch10.addConstraint(Sketcher.Constraint("Vertical", 15))
sketch10.addConstraint(Sketcher.Constraint("Horizontal", 16))
sketch10.addConstraint(Sketcher.Constraint("Vertical", 17))
sketch10.addConstraint(Sketcher.Constraint("Horizontal", 18))
sketch10.addConstraint(Sketcher.Constraint("Vertical", 19))
sketch10.addConstraint(Sketcher.Constraint("Horizontal", 20))
sketch10.addConstraint(Sketcher.Constraint("Vertical", 21))
sketch10.addConstraint(Sketcher.Constraint("Horizontal", 22))
sketch10.addConstraint(Sketcher.Constraint("Vertical", 23))
sketch10.addConstraint(Sketcher.Constraint("Horizontal", 24))
sketch10.addConstraint(Sketcher.Constraint("Vertical", 25))
sketch10.addConstraint(Sketcher.Constraint("Horizontal", 26))
sketch10.addConstraint(Sketcher.Constraint("Vertical", 27))
sketch10.addConstraint(Sketcher.Constraint("Horizontal", 28))
sketch10.addConstraint(Sketcher.Constraint("Vertical", 29))
sketch10.addConstraint(Sketcher.Constraint("Horizontal", 30))
sketch10.addConstraint(Sketcher.Constraint("Vertical", 31))
sketch10.addConstraint(Sketcher.Constraint("Horizontal", 32))
sketch10.addConstraint(Sketcher.Constraint("Vertical", 33))
sketch10.addConstraint(Sketcher.Constraint("Horizontal", 34))
sketch10.addConstraint(Sketcher.Constraint("Vertical", 35))
sketch10.addConstraint(Sketcher.Constraint("Equal", 37, 38))
sketch10.addConstraint(Sketcher.Constraint("Horizontal", 0, 2, 3, 2))
sketch10.addConstraint(Sketcher.Constraint("Horizontal", 2, 2, 5, 2))
sketch10.addConstraint(Sketcher.Constraint("Horizontal", 4, 2, 7, 2))
sketch10.addConstraint(Sketcher.Constraint("Horizontal", 6, 2, 9, 2))
sketch10.addConstraint(Sketcher.Constraint("Horizontal", 8, 2, 11, 2))
sketch10.addConstraint(Sketcher.Constraint("Horizontal", 10, 2, 13, 2))
sketch10.addConstraint(Sketcher.Constraint("Horizontal", 12, 2, 15, 2))
sketch10.addConstraint(Sketcher.Constraint("Horizontal", 14, 2, 17, 2))
sketch10.addConstraint(Sketcher.Constraint("Horizontal", 16, 2, 19, 2))
sketch10.addConstraint(Sketcher.Constraint("Horizontal", 18, 2, 21, 2))
sketch10.addConstraint(Sketcher.Constraint("Horizontal", 22, 2, 33, 2))
sketch10.addConstraint(Sketcher.Constraint("Vertical", 37, 3, 38, 3))
sketch10.addConstraint(Sketcher.Constraint("Vertical", 23, 2, 26, 2))
sketch10.addConstraint(Sketcher.Constraint("Vertical", 25, 2, 28, 2))
sketch10.addConstraint(Sketcher.Constraint("Vertical", 27, 2, 30, 2))
sketch10.addConstraint(Sketcher.Constraint("Equal", 0, 4))
sketch10.addConstraint(Sketcher.Constraint("Equal", 2, 6))
sketch10.addConstraint(Sketcher.Constraint("Equal", 4, 8))
sketch10.addConstraint(Sketcher.Constraint("Equal", 6, 10))
sketch10.addConstraint(Sketcher.Constraint("Equal", 8, 12))
sketch10.addConstraint(Sketcher.Constraint("Equal", 10, 14))
sketch10.addConstraint(Sketcher.Constraint("Equal", 12, 16))
sketch10.addConstraint(Sketcher.Constraint("Equal", 14, 18))
sketch10.addConstraint(Sketcher.Constraint("Equal", 16, 20))
sketch10.addConstraint(Sketcher.Constraint("Equal", 22, 34))
sketch10.addConstraint(Sketcher.Constraint("Equal", 25, 29))
sketch10.addConstraint(Sketcher.Constraint("DistanceX", 24, 2, 24, 1, 5.4))
sketch10.addConstraint(Sketcher.Constraint("DistanceY", 23, 2, 23, 1, 7.5))
sketch10.addConstraint(Sketcher.Constraint("DistanceX", -1, 1, 36, 3, 30.0))
sketch10.addConstraint(Sketcher.Constraint("DistanceX", -1, 1, 37, 3, 45.0))
sketch10.addConstraint(Sketcher.Constraint("DistanceY", 36, 3, 37, 3, 10.0))
sketch10.addConstraint(Sketcher.Constraint("DistanceY", 38, 3, 36, 3, 10.0))
sketch10.addConstraint(Sketcher.Constraint("DistanceX", 4, 2, 0, 2, 10.0))
sketch10.addConstraint(Sketcher.Constraint("DistanceY", 27, 2, 20, 2, 15.0))
sketch10.addConstraint(Sketcher.Constraint("DistanceY", 31, 2, 31, 1, 6.65))
sketch10.addConstraint(Sketcher.Constraint("DistanceY", 36, 3, -1, 1, 37.5))
sketch10.addConstraint(Sketcher.Constraint("DistanceX", 22, 2, 18, 2, 7.5))
sketch10.addConstraint(Sketcher.Constraint("Diameter", 36, 15.91872))
sketch10.addConstraint(Sketcher.Constraint("Diameter", 37, 3.41872))
sketch10.addConstraint(Sketcher.Constraint("DistanceY", 1, 1, 1, 2, 3.175))
sketch10.addConstraint(Sketcher.Constraint("DistanceX", 0, 2, 0, 1, 4.91872))
sketch10.addConstraint(Sketcher.Constraint("DistanceY", 25, 2, 25, 1, 3.25628))
sketch10.addConstraint(Sketcher.Constraint("DistanceX", -1, 1, 0, 2, 52.54064))
sketch10.addConstraint(Sketcher.Constraint("DistanceY", 0, 2, -1, 1, 25.63436))
pad4 = body.newObject("PartDesign::Pad", "Pad003")
pad4.Profile = sketch10
pad4.Length = 3.175
pad4.Reversed = True

doc.recompute()
